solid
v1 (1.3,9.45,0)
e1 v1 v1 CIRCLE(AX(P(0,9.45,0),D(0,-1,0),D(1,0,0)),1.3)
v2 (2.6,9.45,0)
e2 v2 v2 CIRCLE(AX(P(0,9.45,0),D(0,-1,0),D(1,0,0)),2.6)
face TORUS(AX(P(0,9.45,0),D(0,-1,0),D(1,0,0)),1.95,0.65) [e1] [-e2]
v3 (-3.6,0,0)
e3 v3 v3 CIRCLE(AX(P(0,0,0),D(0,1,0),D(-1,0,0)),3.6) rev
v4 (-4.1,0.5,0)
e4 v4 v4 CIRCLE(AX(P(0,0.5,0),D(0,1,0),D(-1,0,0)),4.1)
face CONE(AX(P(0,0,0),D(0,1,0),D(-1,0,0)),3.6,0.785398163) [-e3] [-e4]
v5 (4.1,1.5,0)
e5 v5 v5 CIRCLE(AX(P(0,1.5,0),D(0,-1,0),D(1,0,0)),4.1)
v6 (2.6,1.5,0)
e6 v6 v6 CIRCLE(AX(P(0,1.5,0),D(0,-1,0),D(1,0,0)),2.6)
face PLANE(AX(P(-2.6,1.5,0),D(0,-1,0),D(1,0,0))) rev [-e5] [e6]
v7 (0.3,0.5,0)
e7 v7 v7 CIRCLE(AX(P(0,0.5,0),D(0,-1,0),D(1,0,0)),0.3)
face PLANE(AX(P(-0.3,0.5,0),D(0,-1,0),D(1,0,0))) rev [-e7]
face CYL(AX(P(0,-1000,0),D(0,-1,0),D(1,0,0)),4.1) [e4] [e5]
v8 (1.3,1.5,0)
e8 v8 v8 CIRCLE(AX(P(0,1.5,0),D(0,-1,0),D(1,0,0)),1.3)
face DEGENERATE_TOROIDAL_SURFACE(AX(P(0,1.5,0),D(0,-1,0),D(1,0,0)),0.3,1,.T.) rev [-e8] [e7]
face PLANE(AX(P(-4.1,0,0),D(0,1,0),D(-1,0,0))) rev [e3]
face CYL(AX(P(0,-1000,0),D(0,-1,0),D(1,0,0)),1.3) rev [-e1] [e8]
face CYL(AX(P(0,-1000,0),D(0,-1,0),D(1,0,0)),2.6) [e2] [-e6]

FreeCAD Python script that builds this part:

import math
import FreeCAD as App
import Part
import Sketcher


def edges_at(feature, points):
    """Names of the edges that pass closest to the given points."""
    edges = feature.Shape.Edges
    near = lambda p: min(range(len(edges)), key=lambda i: edges[i].distToShape(Part.Vertex(*p))[0])
    return sorted({f"Edge{near(p) + 1}" for p in points})

doc = App.newDocument("Part")
body = doc.addObject("PartDesign::Body", "Body")

# Sketch on XY plane
sketch1 = doc.addObject("Sketcher::SketchObject", "Sketch")
body.addObject(sketch1)
sketch1.AttachmentSupport = (doc.XY_Plane, [""])
sketch1.MapMode = "FlatFace"
sketch1.addGeometry(Part.LineSegment(App.Vector(0, 0, 0), App.Vector(0, 0.5, 0)), False)
sketch1.addGeometry(Part.LineSegment(App.Vector(0, 0.5, 0), App.Vector(-0.3, 0.5, 0)), False)
sketch1.addGeometry(Part.ArcOfCircle(Part.Circle(App.Vector(-0.3, 1.5, 0), App.Vector(0, 0, 1), 1), math.radians(-180), math.radians(-90)), False)
sketch1.addGeometry(Part.LineSegment(App.Vector(-1.3, 1.5, 0), App.Vector(-1.3, 9.45, 0)), False)
sketch1.addGeometry(Part.ArcOfCircle(Part.Circle(App.Vector(-1.95, 9.45, 0), App.Vector(0, 0, 1), 0.65), math.radians(0), math.radians(180)), False)
sketch1.addGeometry(Part.LineSegment(App.Vector(-2.6, 9.45, 0), App.Vector(-2.6, 1.5, 0)), False)
sketch1.addGeometry(Part.LineSegment(App.Vector(-2.6, 1.5, 0), App.Vector(-4.1, 1.5, 0)), False)
sketch1.addGeometry(Part.LineSegment(App.Vector(-4.1, 1.5, 0), App.Vector(-4.1, 0, 0)), False)
sketch1.addGeometry(Part.LineSegment(App.Vector(-4.1, 0, 0), App.Vector(0, 0, 0)), False)
sketch1.addConstraint(Sketcher.Constraint("Coincident", 0, 2, 1, 1))
sketch1.addConstraint(Sketcher.Constraint("Tangent", 1, 2, 2, 2))
sketch1.addConstraint(Sketcher.Constraint("Tangent", 2, 1, 3, 1))
sketch1.addConstraint(Sketcher.Constraint("Tangent", 3, 2, 4, 1))
sketch1.addConstraint(Sketcher.Constraint("Tangent", 4, 2, 5, 1))
sketch1.addConstraint(Sketcher.Constraint("Coincident", 5, 2, 6, 1))
sketch1.addConstraint(Sketcher.Constraint("Coincident", 6, 2, 7, 1))
sketch1.addConstraint(Sketcher.Constraint("Coincident", 7, 2, 8, 1))
sketch1.addConstraint(Sketcher.Constraint("Coincident", 8, 2, 0, 1))
sketch1.addConstraint(Sketcher.Constraint("Vertical", 0))
sketch1.addConstraint(Sketcher.Constraint("Horizontal", 1))
sketch1.addConstraint(Sketcher.Constraint("Vertical", 3))
sketch1.addConstraint(Sketcher.Constraint("Vertical", 5))
sketch1.addConstraint(Sketcher.Constraint("Horizontal", 6))
sketch1.addConstraint(Sketcher.Constraint("Vertical", 7))
sketch1.addConstraint(Sketcher.Constraint("Horizontal", 8))
sketch1.addConstraint(Sketcher.Constraint("Coincident", 8, 2, -1, 1))
sketch1.addConstraint(Sketcher.Constraint("Horizontal", 2, 1, 5, 2))
sketch1.addConstraint(Sketcher.Constraint("Equal", 6, 7))
sketch1.addConstraint(Sketcher.Constraint("Radius", 2, 1.0))
sketch1.addConstraint(Sketcher.Constraint("Radius", 4, 0.65))
sketch1.addConstraint(Sketcher.Constraint("DistanceX", 1, 2, 1, 1, 0.3))
sketch1.addConstraint(Sketcher.Constraint("DistanceX", 6, 2, 6, 1, 1.5))
sketch1.addConstraint(Sketcher.Constraint("DistanceY", 3, 1, 3, 2, 7.95))
revolution = doc.addObject("PartDesign::Revolution", "Revolution")
body.addObject(revolution)
revolution.Profile = sketch1
revolution.ReferenceAxis = (sketch1, ["V_Axis"])
revolution.Angle = 360
doc.recompute()

chamfer = doc.addObject("PartDesign::Chamfer", "Chamfer")
body.addObject(chamfer)
chamfer.Base = (revolution, edges_at(revolution, [(4.1, 0, 0)]))
chamfer.Size = 0.5

doc.recompute()
